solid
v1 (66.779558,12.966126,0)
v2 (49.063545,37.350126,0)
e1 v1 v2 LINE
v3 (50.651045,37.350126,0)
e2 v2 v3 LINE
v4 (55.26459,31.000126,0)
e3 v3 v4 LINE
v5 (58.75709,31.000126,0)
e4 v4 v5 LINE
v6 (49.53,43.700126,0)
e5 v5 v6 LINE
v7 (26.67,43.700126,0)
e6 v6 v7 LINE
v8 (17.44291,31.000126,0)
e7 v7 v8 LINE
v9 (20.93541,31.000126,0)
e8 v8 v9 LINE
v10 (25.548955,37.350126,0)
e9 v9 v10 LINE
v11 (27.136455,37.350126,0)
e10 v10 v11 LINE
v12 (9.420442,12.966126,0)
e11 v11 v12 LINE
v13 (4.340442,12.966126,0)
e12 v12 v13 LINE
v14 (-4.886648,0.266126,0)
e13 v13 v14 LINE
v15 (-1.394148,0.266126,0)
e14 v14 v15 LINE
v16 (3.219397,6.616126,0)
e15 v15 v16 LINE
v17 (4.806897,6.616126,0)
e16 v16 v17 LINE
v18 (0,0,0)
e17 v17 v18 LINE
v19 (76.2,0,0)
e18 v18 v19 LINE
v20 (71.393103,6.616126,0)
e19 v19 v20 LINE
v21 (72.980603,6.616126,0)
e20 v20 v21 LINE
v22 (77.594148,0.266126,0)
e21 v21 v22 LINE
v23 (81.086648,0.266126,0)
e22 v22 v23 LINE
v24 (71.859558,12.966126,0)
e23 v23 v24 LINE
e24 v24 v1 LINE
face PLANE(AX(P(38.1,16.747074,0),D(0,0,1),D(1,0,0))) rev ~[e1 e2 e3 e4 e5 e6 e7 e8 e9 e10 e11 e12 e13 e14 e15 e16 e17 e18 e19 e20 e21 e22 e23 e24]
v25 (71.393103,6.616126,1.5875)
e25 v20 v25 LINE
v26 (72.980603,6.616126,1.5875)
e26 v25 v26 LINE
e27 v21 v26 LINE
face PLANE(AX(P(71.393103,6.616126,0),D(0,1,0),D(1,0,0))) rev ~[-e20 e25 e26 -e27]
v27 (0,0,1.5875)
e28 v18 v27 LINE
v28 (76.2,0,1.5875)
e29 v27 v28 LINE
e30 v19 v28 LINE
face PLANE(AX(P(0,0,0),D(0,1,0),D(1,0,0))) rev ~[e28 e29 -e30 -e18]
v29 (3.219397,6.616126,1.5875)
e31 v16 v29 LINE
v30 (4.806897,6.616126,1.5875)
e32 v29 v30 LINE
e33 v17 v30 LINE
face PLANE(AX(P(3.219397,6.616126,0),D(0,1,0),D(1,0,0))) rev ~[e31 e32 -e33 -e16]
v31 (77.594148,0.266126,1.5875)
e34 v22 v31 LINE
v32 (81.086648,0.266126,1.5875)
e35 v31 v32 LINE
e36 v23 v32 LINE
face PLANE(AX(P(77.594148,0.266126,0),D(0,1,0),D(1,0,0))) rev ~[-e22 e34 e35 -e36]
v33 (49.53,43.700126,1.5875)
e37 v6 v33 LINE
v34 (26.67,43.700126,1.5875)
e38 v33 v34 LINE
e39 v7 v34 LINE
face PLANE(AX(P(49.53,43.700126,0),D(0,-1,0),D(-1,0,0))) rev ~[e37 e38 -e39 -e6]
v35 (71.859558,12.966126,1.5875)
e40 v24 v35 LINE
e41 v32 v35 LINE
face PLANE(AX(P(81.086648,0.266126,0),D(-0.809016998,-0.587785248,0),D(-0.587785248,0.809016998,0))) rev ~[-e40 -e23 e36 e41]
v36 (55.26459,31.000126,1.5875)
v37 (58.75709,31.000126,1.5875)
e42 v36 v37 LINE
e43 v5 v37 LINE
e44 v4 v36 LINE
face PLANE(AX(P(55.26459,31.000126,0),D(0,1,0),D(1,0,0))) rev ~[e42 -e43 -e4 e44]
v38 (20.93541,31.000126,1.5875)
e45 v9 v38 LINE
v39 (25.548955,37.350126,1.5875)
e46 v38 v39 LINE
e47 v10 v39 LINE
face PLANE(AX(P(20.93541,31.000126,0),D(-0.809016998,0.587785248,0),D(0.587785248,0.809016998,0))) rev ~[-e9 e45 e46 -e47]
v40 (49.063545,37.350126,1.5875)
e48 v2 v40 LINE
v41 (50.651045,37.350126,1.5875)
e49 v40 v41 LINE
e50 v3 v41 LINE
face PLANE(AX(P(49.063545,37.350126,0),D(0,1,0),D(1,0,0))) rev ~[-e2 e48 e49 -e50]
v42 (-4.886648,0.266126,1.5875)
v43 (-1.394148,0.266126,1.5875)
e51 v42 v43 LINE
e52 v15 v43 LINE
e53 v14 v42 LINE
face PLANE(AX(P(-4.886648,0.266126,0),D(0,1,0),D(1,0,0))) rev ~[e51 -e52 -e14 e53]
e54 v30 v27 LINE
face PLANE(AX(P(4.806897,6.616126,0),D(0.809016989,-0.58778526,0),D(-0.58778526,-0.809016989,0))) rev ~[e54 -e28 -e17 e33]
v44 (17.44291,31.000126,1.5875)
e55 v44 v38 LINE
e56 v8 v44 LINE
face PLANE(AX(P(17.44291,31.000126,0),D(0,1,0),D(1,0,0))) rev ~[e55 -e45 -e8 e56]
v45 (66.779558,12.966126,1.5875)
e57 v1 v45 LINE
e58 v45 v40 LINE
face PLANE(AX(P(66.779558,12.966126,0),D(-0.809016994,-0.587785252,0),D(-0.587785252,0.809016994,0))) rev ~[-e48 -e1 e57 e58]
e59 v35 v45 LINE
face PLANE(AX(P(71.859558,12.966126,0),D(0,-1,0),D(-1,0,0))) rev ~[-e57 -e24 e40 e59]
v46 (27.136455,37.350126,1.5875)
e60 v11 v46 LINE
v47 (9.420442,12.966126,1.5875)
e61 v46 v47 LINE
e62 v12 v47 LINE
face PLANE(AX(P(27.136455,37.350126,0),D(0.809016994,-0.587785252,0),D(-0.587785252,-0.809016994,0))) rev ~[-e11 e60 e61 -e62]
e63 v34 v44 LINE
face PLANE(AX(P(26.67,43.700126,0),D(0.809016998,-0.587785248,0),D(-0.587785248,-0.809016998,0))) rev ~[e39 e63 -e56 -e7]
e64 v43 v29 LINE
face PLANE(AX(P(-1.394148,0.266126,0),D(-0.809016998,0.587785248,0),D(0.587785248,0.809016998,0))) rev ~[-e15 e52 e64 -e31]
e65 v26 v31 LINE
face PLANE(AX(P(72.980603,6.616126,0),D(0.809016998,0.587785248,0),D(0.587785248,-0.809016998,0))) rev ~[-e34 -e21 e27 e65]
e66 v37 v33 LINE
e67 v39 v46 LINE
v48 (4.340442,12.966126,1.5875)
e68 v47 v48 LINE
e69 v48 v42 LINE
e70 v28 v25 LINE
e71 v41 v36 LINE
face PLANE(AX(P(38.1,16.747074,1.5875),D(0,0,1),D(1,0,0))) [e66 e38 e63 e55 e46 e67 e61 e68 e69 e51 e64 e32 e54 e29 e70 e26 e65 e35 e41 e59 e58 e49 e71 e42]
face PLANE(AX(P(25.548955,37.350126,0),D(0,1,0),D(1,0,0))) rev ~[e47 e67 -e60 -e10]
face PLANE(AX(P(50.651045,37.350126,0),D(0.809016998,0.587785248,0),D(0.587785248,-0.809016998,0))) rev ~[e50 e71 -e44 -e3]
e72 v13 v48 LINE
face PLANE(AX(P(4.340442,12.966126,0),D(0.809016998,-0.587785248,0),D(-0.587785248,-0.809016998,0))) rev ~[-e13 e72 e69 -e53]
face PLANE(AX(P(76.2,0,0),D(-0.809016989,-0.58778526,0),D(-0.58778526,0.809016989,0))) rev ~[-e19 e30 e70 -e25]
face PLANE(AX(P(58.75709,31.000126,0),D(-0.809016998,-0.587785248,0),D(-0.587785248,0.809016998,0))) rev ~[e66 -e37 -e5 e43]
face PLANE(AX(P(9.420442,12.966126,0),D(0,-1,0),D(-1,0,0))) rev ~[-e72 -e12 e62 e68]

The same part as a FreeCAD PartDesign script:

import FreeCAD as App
import Part
import Sketcher

V = App.Vector
Q = App.Units.Quantity


def add_polygon(sketch, points):
    """Adds a closed chain of lines whose ends are joined by coincident constraints."""
    first, n = sketch.GeometryCount, len(points)
    for a, b in zip(points, points[1:] + points[:1]):
        sketch.addGeometry(Part.LineSegment(App.Vector(*a, 0), App.Vector(*b, 0)), False)
    for i in range(n):
        sketch.addConstraint(Sketcher.Constraint("Coincident", first + i, 2, first + (i + 1) % n, 1))

doc = App.newDocument("Part")
body = doc.addObject("PartDesign::Body", "Body")

sketch1 = body.newObject("Sketcher::SketchObject", "Sketch")
sketch1.AttachmentSupport = (doc.getObject("XY_Plane"), [""])
sketch1.MapMode = "FlatFace"
add_polygon(sketch1, [(26.7, 43.7), (17.4, 31), (20.9, 31), (25.5, 37.4), (27.1, 37.4), (9.4, 13), (4.3, 13), (-4.9, 0.3), (-1.4, 0.3), (3.2, 6.6), (4.8, 6.6), (0, 0), (76.2, 0), (71.4, 6.6), (73, 6.6), (77.6, 0.3), (81.1, 0.3), (71.9, 13), (66.8, 13), (49.1, 37.4), (50.7, 37.4), (55.3, 31), (58.8, 31), (49.5, 43.7)])
sketch1.addConstraint([
    Sketcher.Constraint("Horizontal", 1),
    Sketcher.Constraint("Horizontal", 3),
    Sketcher.Constraint("Horizontal", 5),
    Sketcher.Constraint("Horizontal", 7),
    Sketcher.Constraint("Horizontal", 9),
    Sketcher.Constraint("Horizontal", 11),
    Sketcher.Constraint("Horizontal", 13),
    Sketcher.Constraint("Horizontal", 15),
    Sketcher.Constraint("Horizontal", 17),
    Sketcher.Constraint("Horizontal", 19),
    Sketcher.Constraint("Horizontal", 21),
    Sketcher.Constraint("Horizontal", 23),
    Sketcher.Constraint("Coincident", 10, 2, -1, 1),
    Sketcher.Constraint("Parallel", 0, 2),
    Sketcher.Constraint("Parallel", 2, 4),
    Sketcher.Constraint("Parallel", 4, 6),
    Sketcher.Constraint("Parallel", 6, 8),
    Sketcher.Constraint("Parallel", 8, 10),
    Sketcher.Constraint("Parallel", 12, 14),
    Sketcher.Constraint("Parallel", 14, 16),
    Sketcher.Constraint("Parallel", 16, 18),
    Sketcher.Constraint("Parallel", 18, 20),
    Sketcher.Constraint("Parallel", 20, 22),
    Sketcher.Constraint("Horizontal", 9, 2, 12, 2),
    Sketcher.Constraint("Horizontal", 7, 2, 14, 2),
    Sketcher.Constraint("Horizontal", 5, 2, 16, 2),
    Sketcher.Constraint("Horizontal", 3, 2, 18, 2),
    Sketcher.Constraint("Horizontal", 1, 2, 20, 2),
    Sketcher.Constraint("Equal", 1, 7),
    Sketcher.Constraint("Equal", 3, 9),
    Sketcher.Constraint("Equal", 9, 13),
    Sketcher.Constraint("Equal", 7, 15),
    Sketcher.Constraint("Equal", 5, 17),
    Sketcher.Constraint("Equal", 13, 19),
    Sketcher.Constraint("Equal", 15, 21),
    Sketcher.Constraint("Equal", 0, 6),
    Sketcher.Constraint("Equal", 2, 8),
    Sketcher.Constraint("Equal", 10, 12),
    Sketcher.Constraint("DistanceX", 11, 1, 11, 2, Q("3 in")),
    Sketcher.Constraint("DistanceX", 5, 2, 5, 1, Q("0.2 in")),
    Sketcher.Constraint("DistanceX", 23, 2, 23, 1, Q("0.9 in")),
    Sketcher.Constraint("Angle", 0, Q("-126 deg")),
    Sketcher.Constraint("DistanceY", 6, 2, 5, 2, Q("0.5 in")),
    Sketcher.Constraint("DistanceX", 3, 1, 3, 2, Q("0.0625 in")),
    Sketcher.Constraint("DistanceY", 1, 2, 2, 2, Q("0.25 in")),
    Sketcher.Constraint("DistanceY", 4, 2, 0, 2, Q("0.71 in")),
    Sketcher.Constraint("DistanceX", 1, 1, 1, 2, Q("0.1375 in")),
])
pad1 = body.newObject("PartDesign::Pad", "Pad")
pad1.Profile = sketch1
pad1.Length = Q("0.0625 in")

doc.recompute()
